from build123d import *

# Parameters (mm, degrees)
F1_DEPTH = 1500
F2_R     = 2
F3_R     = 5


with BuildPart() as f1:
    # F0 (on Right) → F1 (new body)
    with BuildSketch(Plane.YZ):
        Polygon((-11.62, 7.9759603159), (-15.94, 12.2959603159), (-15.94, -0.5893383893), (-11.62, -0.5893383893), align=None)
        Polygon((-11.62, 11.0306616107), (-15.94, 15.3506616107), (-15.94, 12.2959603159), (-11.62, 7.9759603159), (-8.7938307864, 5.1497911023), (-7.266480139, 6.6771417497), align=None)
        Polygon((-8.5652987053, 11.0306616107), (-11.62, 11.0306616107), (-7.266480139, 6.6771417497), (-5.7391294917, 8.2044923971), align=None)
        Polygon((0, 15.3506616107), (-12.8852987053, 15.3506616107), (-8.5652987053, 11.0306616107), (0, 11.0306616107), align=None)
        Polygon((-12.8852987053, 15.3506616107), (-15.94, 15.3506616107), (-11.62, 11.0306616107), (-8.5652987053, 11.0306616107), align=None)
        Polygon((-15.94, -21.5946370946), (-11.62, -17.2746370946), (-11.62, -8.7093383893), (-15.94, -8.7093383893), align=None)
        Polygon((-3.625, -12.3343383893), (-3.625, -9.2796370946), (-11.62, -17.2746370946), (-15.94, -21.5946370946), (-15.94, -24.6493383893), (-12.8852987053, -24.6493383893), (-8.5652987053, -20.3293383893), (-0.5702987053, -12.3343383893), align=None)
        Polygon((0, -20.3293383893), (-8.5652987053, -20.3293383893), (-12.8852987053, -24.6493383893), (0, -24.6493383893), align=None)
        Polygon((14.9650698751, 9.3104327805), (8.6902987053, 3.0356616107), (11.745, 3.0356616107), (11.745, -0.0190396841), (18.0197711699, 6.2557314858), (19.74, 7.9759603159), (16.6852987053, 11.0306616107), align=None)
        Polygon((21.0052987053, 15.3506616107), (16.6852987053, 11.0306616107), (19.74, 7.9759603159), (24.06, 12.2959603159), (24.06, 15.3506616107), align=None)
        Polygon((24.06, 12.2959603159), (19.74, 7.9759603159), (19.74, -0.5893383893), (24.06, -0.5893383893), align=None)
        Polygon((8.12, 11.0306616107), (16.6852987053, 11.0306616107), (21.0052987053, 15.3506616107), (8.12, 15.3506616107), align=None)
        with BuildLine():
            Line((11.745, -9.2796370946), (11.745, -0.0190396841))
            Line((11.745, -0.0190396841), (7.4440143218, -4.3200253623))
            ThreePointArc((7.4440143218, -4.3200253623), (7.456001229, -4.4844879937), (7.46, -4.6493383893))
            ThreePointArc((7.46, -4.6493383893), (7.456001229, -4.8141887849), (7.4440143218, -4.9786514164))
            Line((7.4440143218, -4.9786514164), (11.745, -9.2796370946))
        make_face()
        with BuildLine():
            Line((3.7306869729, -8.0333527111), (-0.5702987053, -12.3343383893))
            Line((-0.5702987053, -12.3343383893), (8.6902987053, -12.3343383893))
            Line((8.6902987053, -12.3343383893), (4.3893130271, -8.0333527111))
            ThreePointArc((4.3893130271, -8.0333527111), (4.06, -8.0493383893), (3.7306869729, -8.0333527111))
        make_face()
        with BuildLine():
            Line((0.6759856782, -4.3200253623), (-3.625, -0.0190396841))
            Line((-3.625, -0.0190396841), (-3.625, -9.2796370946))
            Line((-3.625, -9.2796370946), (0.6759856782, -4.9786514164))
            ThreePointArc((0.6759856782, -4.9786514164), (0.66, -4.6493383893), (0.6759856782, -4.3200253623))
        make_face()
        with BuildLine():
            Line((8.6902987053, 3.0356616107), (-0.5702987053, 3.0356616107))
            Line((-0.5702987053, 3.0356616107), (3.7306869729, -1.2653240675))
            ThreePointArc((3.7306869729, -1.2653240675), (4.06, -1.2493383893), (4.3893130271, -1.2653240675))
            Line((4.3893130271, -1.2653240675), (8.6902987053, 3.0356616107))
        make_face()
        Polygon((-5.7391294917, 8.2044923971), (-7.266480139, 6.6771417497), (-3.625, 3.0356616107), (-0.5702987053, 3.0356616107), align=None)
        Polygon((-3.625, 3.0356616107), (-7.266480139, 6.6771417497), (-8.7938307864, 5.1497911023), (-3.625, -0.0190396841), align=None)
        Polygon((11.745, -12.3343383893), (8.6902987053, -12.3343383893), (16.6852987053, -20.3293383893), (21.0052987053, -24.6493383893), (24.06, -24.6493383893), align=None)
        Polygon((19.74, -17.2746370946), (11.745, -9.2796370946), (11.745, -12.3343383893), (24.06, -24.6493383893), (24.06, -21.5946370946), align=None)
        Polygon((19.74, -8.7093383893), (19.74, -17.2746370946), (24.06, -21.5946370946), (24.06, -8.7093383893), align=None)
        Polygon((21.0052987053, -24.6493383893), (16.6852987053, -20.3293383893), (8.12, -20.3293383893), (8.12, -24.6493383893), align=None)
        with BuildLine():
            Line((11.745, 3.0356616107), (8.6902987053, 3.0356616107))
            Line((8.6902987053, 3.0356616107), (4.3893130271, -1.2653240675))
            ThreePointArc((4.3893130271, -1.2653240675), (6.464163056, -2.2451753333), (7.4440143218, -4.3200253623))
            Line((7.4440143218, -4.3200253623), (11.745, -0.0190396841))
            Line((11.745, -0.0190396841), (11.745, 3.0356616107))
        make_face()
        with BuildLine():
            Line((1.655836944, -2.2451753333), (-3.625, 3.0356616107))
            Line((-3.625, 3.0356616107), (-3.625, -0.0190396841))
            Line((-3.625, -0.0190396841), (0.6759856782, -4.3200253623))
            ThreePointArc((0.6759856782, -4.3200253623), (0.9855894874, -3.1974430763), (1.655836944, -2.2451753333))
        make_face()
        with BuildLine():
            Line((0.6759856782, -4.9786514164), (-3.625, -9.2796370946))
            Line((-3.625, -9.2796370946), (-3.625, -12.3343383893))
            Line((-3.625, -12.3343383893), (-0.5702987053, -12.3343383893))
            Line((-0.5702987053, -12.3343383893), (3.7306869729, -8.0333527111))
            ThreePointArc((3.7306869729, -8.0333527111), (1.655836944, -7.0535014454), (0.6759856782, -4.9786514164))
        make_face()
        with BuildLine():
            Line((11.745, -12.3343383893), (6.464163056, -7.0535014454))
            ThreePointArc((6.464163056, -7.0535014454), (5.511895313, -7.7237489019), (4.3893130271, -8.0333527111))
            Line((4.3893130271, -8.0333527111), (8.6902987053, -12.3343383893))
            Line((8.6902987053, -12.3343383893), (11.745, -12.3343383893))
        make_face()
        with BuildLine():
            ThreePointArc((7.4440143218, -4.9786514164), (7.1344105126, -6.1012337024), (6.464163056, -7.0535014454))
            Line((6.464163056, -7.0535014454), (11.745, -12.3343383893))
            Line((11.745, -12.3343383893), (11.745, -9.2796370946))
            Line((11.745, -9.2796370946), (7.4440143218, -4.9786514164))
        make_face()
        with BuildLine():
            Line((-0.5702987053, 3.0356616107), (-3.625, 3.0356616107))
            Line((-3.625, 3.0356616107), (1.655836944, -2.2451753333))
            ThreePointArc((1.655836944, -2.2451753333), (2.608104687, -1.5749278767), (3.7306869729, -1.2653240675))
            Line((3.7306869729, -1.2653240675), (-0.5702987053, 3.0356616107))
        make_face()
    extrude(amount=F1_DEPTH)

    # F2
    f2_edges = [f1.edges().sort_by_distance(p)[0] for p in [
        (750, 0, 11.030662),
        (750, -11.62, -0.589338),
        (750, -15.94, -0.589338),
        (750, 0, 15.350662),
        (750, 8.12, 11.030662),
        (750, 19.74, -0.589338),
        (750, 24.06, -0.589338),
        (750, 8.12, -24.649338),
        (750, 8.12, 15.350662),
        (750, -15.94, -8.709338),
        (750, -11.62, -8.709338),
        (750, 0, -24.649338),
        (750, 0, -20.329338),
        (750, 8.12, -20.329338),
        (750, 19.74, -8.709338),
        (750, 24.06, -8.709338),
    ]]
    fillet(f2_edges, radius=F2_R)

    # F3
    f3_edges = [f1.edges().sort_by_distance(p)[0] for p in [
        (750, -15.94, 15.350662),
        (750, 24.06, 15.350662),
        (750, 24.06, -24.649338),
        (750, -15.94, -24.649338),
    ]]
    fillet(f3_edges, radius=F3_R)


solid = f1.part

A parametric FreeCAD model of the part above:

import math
import FreeCAD as App
import Part
import Sketcher
from FreeCAD import Vector


def edges_at(feature, points):
    """Names of the edges that pass closest to the given points."""
    edges = feature.Shape.Edges
    near = lambda p: min(range(len(edges)), key=lambda i: edges[i].distToShape(Part.Vertex(*p))[0])
    return sorted({f"Edge{near(p) + 1}" for p in points})

doc = App.newDocument("Part")
body = doc.addObject("PartDesign::Body", "Body")

# Sketch on YZ plane
sketch1 = doc.addObject("Sketcher::SketchObject", "Sketch")
body.addObject(sketch1)
sketch1.AttachmentSupport = (doc.YZ_Plane, [""])
sketch1.MapMode = "FlatFace"
sketch1.addGeometry([
    Part.LineSegment(Vector(8.69, 3.04, 0), Vector(-0.57, 3.04, 0)),  # 0
    Part.LineSegment(Vector(-0.57, 3.04, 0), Vector(-8.57, 11.03, 0)),  # 1
    Part.LineSegment(Vector(-8.57, 11.03, 0), Vector(0, 11.03, 0)),  # 2
    Part.LineSegment(Vector(0, 11.03, 0), Vector(0, 15.35, 0)),  # 3
    Part.LineSegment(Vector(0, 15.35, 0), Vector(-15.94, 15.35, 0)),  # 4
    Part.LineSegment(Vector(-15.94, 15.35, 0), Vector(-15.94, -0.59, 0)),  # 5
    Part.LineSegment(Vector(-15.94, -0.59, 0), Vector(-11.62, -0.59, 0)),  # 6
    Part.LineSegment(Vector(-11.62, -0.59, 0), Vector(-11.62, 7.98, 0)),  # 7
    Part.LineSegment(Vector(-11.62, 7.98, 0), Vector(-3.62, -0.02, 0)),  # 8
    Part.LineSegment(Vector(-3.62, -0.02, 0), Vector(-3.62, -9.28, 0)),  # 9
    Part.LineSegment(Vector(-3.62, -9.28, 0), Vector(-11.62, -17.27, 0)),  # 10
    Part.LineSegment(Vector(-11.62, -17.27, 0), Vector(-11.62, -8.71, 0)),  # 11
    Part.LineSegment(Vector(-11.62, -8.71, 0), Vector(-15.94, -8.71, 0)),  # 12
    Part.LineSegment(Vector(-15.94, -8.71, 0), Vector(-15.94, -24.65, 0)),  # 13
    Part.LineSegment(Vector(-15.94, -24.65, 0), Vector(0, -24.65, 0)),  # 14
    Part.LineSegment(Vector(0, -24.65, 0), Vector(0, -20.33, 0)),  # 15
    Part.LineSegment(Vector(0, -20.33, 0), Vector(-8.57, -20.33, 0)),  # 16
    Part.LineSegment(Vector(-8.57, -20.33, 0), Vector(-0.57, -12.33, 0)),  # 17
    Part.LineSegment(Vector(-0.57, -12.33, 0), Vector(8.69, -12.33, 0)),  # 18
    Part.LineSegment(Vector(8.69, -12.33, 0), Vector(16.69, -20.33, 0)),  # 19
    Part.LineSegment(Vector(16.69, -20.33, 0), Vector(8.12, -20.33, 0)),  # 20
    Part.LineSegment(Vector(8.12, -20.33, 0), Vector(8.12, -24.65, 0)),  # 21
    Part.LineSegment(Vector(8.12, -24.65, 0), Vector(24.06, -24.65, 0)),  # 22
    Part.LineSegment(Vector(24.06, -24.65, 0), Vector(24.06, -8.71, 0)),  # 23
    Part.LineSegment(Vector(24.06, -8.71, 0), Vector(19.74, -8.71, 0)),  # 24
    Part.LineSegment(Vector(19.74, -8.71, 0), Vector(19.74, -17.27, 0)),  # 25
    Part.LineSegment(Vector(19.74, -17.27, 0), Vector(11.74, -9.28, 0)),  # 26
    Part.LineSegment(Vector(11.74, -9.28, 0), Vector(11.74, -0.02, 0)),  # 27
    Part.LineSegment(Vector(11.74, -0.02, 0), Vector(19.74, 7.98, 0)),  # 28
    Part.LineSegment(Vector(19.74, 7.98, 0), Vector(19.74, -0.59, 0)),  # 29
    Part.LineSegment(Vector(19.74, -0.59, 0), Vector(24.06, -0.59, 0)),  # 30
    Part.LineSegment(Vector(24.06, -0.59, 0), Vector(24.06, 15.35, 0)),  # 31
    Part.LineSegment(Vector(24.06, 15.35, 0), Vector(8.12, 15.35, 0)),  # 32
    Part.LineSegment(Vector(8.12, 15.35, 0), Vector(8.12, 11.03, 0)),  # 33
    Part.LineSegment(Vector(8.12, 11.03, 0), Vector(16.69, 11.03, 0)),  # 34
    Part.LineSegment(Vector(16.69, 11.03, 0), Vector(8.69, 3.04, 0)),  # 35
    Part.ArcOfCircle(Part.Circle(Vector(4.06, -4.65, 0), Vector(0, 0, 1), 3.4), math.radians(135), math.radians(174)),  # 36
    Part.ArcOfCircle(Part.Circle(Vector(4.06, -4.65, 0), Vector(0, 0, 1), 3.4), math.radians(96), math.radians(135)),  # 37
    Part.ArcOfCircle(Part.Circle(Vector(4.06, -4.65, 0), Vector(0, 0, 1), 3.4), math.radians(84.44), math.radians(95.56)),  # 38
    Part.ArcOfCircle(Part.Circle(Vector(4.06, -4.65, 0), Vector(0, 0, 1), 3.4), math.radians(6), math.radians(84)),  # 39
    Part.ArcOfCircle(Part.Circle(Vector(4.06, -4.65, 0), Vector(0, 0, 1), 3.4), math.radians(0), math.radians(5.56)),  # 40
    Part.ArcOfCircle(Part.Circle(Vector(4.06, -4.65, 0), Vector(0, 0, 1), 3.4), math.radians(-5.56), math.radians(0)),  # 41
    Part.ArcOfCircle(Part.Circle(Vector(4.06, -4.65, 0), Vector(0, 0, 1), 3.4), math.radians(-45), math.radians(-6)),  # 42
    Part.ArcOfCircle(Part.Circle(Vector(4.06, -4.65, 0), Vector(0, 0, 1), 3.4), math.radians(-84), math.radians(-45)),  # 43
    Part.ArcOfCircle(Part.Circle(Vector(4.06, -4.65, 0), Vector(0, 0, 1), 3.4), math.radians(-95.56), math.radians(-84.44)),  # 44
    Part.ArcOfCircle(Part.Circle(Vector(4.06, -4.65, 0), Vector(0, 0, 1), 3.4), math.radians(-174), math.radians(-96)),  # 45
    Part.ArcOfCircle(Part.Circle(Vector(4.06, -4.65, 0), Vector(0, 0, 1), 3.4), math.radians(174.44), math.radians(185.56)),  # 46
], False)
sketch1.addConstraint([
    Sketcher.Constraint("Coincident", 0, 2, 1, 1),
    Sketcher.Constraint("Coincident", 1, 2, 2, 1),
    Sketcher.Constraint("Coincident", 2, 2, 3, 1),
    Sketcher.Constraint("Coincident", 3, 2, 4, 1),
    Sketcher.Constraint("Coincident", 4, 2, 5, 1),
    Sketcher.Constraint("Coincident", 5, 2, 6, 1),
    Sketcher.Constraint("Coincident", 6, 2, 7, 1),
    Sketcher.Constraint("Coincident", 7, 2, 8, 1),
    Sketcher.Constraint("Coincident", 8, 2, 9, 1),
    Sketcher.Constraint("Coincident", 9, 2, 10, 1),
    Sketcher.Constraint("Coincident", 10, 2, 11, 1),
    Sketcher.Constraint("Coincident", 11, 2, 12, 1),
    Sketcher.Constraint("Coincident", 12, 2, 13, 1),
    Sketcher.Constraint("Coincident", 13, 2, 14, 1),
    Sketcher.Constraint("Coincident", 14, 2, 15, 1),
    Sketcher.Constraint("Coincident", 15, 2, 16, 1),
    Sketcher.Constraint("Coincident", 16, 2, 17, 1),
    Sketcher.Constraint("Coincident", 17, 2, 18, 1),
    Sketcher.Constraint("Coincident", 18, 2, 19, 1),
    Sketcher.Constraint("Coincident", 19, 2, 20, 1),
    Sketcher.Constraint("Coincident", 20, 2, 21, 1),
    Sketcher.Constraint("Coincident", 21, 2, 22, 1),
    Sketcher.Constraint("Coincident", 22, 2, 23, 1),
    Sketcher.Constraint("Coincident", 23, 2, 24, 1),
    Sketcher.Constraint("Coincident", 24, 2, 25, 1),
    Sketcher.Constraint("Coincident", 25, 2, 26, 1),
    Sketcher.Constraint("Coincident", 26, 2, 27, 1),
    Sketcher.Constraint("Coincident", 27, 2, 28, 1),
    Sketcher.Constraint("Coincident", 28, 2, 29, 1),
    Sketcher.Constraint("Coincident", 29, 2, 30, 1),
    Sketcher.Constraint("Coincident", 30, 2, 31, 1),
    Sketcher.Constraint("Coincident", 31, 2, 32, 1),
    Sketcher.Constraint("Coincident", 32, 2, 33, 1),
    Sketcher.Constraint("Coincident", 33, 2, 34, 1),
    Sketcher.Constraint("Coincident", 34, 2, 35, 1),
    Sketcher.Constraint("Coincident", 35, 2, 0, 1),
    Sketcher.Constraint("Tangent", 36, 1, 37, 2),
    Sketcher.Constraint("Tangent", 37, 1, 38, 2),
    Sketcher.Constraint("Tangent", 38, 1, 39, 2),
    Sketcher.Constraint("Tangent", 39, 1, 40, 2),
    Sketcher.Constraint("Tangent", 40, 1, 41, 2),
    Sketcher.Constraint("Tangent", 41, 1, 42, 2),
    Sketcher.Constraint("Tangent", 42, 1, 43, 2),
    Sketcher.Constraint("Tangent", 43, 1, 44, 2),
    Sketcher.Constraint("Tangent", 44, 1, 45, 2),
    Sketcher.Constraint("Tangent", 45, 1, 46, 2),
    Sketcher.Constraint("Tangent", 46, 1, 36, 2),
    Sketcher.Constraint("Horizontal", 0),
    Sketcher.Constraint("Horizontal", 2),
    Sketcher.Constraint("Vertical", 3),
    Sketcher.Constraint("Horizontal", 4),
    Sketcher.Constraint("Vertical", 5),
    Sketcher.Constraint("Horizontal", 6),
    Sketcher.Constraint("Vertical", 7),
    Sketcher.Constraint("Vertical", 9),
    Sketcher.Constraint("Vertical", 11),
    Sketcher.Constraint("Horizontal", 12),
    Sketcher.Constraint("Vertical", 13),
    Sketcher.Constraint("Horizontal", 14),
    Sketcher.Constraint("Vertical", 15),
    Sketcher.Constraint("Horizontal", 16),
    Sketcher.Constraint("Horizontal", 18),
    Sketcher.Constraint("Horizontal", 20),
    Sketcher.Constraint("Vertical", 21),
    Sketcher.Constraint("Horizontal", 22),
    Sketcher.Constraint("Vertical", 23),
    Sketcher.Constraint("Horizontal", 24),
    Sketcher.Constraint("Vertical", 25),
    Sketcher.Constraint("Vertical", 27),
    Sketcher.Constraint("Vertical", 29),
    Sketcher.Constraint("Horizontal", 30),
    Sketcher.Constraint("Vertical", 31),
    Sketcher.Constraint("Horizontal", 32),
    Sketcher.Constraint("Vertical", 33),
    Sketcher.Constraint("Horizontal", 34),
    Sketcher.Constraint("Coincident", 38, 3, 36, 3),
    Sketcher.Constraint("Coincident", 40, 3, 36, 3),
    Sketcher.Constraint("Coincident", 42, 3, 36, 3),
    Sketcher.Constraint("Coincident", 44, 3, 36, 3),
    Sketcher.Constraint("PointOnObject", 2, 2, -2),
    Sketcher.Constraint("PointOnObject", 14, 2, -2),
    Sketcher.Constraint("Parallel", 1, 8),
    Sketcher.Constraint("Perpendicular", 8, 10),
    Sketcher.Constraint("Parallel", 10, 17),
    Sketcher.Constraint("Perpendicular", 17, 19),
    Sketcher.Constraint("Parallel", 19, 26),
    Sketcher.Constraint("Perpendicular", 26, 28),
    Sketcher.Constraint("Parallel", 28, 35),
    Sketcher.Constraint("Horizontal", 16, 2, 19, 2),
    Sketcher.Constraint("Horizontal", 14, 2, 21, 2),
    Sketcher.Constraint("Horizontal", 12, 2, 23, 2),
    Sketcher.Constraint("Horizontal", 10, 2, 25, 2),
    Sketcher.Constraint("Horizontal", 9, 2, 26, 2),
    Sketcher.Constraint("Horizontal", 8, 2, 27, 2),
    Sketcher.Constraint("Horizontal", 7, 2, 28, 2),
    Sketcher.Constraint("Horizontal", 6, 2, 29, 2),
    Sketcher.Constraint("Horizontal", 4, 2, 31, 2),
    Sketcher.Constraint("Horizontal", 2, 2, 33, 2),
    Sketcher.Constraint("Horizontal", 37, 1, 38, 1),
    Sketcher.Constraint("Horizontal", 46, 3, 40, 1),
    Sketcher.Constraint("Horizontal", 43, 1, 44, 1),
    Sketcher.Constraint("Horizontal", 41, 1, 45, 1),
    Sketcher.Constraint("Horizontal", 39, 1, 46, 1),
    Sketcher.Constraint("Vertical", 7, 2, 10, 2),
    Sketcher.Constraint("Vertical", 5, 2, 12, 2),
    Sketcher.Constraint("Vertical", 1, 2, 16, 2),
    Sketcher.Constraint("Vertical", 0, 2, 17, 2),
    Sketcher.Constraint("Vertical", 25, 2, 28, 2),
    Sketcher.Constraint("Vertical", 23, 2, 30, 2),
    Sketcher.Constraint("Vertical", 21, 2, 32, 2),
    Sketcher.Constraint("Vertical", 19, 2, 34, 2),
    Sketcher.Constraint("Vertical", 39, 1, 41, 1),
    Sketcher.Constraint("Vertical", 38, 1, 43, 1),
    Sketcher.Constraint("Equal", 16, 20),
    Sketcher.Constraint("Equal", 14, 22),
    Sketcher.Constraint("Equal", 12, 24),
    Sketcher.Constraint("Equal", 30, 3),
    Sketcher.Constraint("Equal", 32, 5),
    Sketcher.Constraint("Equal", 34, 7),
    Sketcher.Constraint("Equal", 18, 9),
    Sketcher.Constraint("Equal", 7, 11),
    Sketcher.Constraint("Equal", 5, 13),
    Sketcher.Constraint("Equal", 3, 15),
    Sketcher.Constraint("Equal", 1, 8),
    Sketcher.Constraint("Radius", 36, 3.4),
    Sketcher.Constraint("DistanceY", 38, 3, 3, 2, 20.0),
    Sketcher.Constraint("DistanceX", 4, 2, 46, 3, 20.0),
    Sketcher.Constraint("DistanceY", 14, 2, 44, 3, 20.0),
    Sketcher.Constraint("DistanceX", 4, 2, 4, 1, 15.94),
    Sketcher.Constraint("DistanceX", 6, 1, 6, 2, 4.32),
    Sketcher.Constraint("DistanceX", 2, 1, 2, 2, 8.565299),
    Sketcher.Constraint("DistanceX", 8, 2, -1, 1, 3.625),
    Sketcher.Constraint("DistanceY", 42, 1, -1, 1, 7.053501),
    Sketcher.Constraint("DistanceY", 36, 3, -1, 1, 4.649338),
    Sketcher.Constraint("DistanceY", 41, 1, -1, 1, 4.978651),
    Sketcher.Constraint("DistanceX", 36, 1, 37, 1, 2.07485),
    Sketcher.Constraint("DistanceY", 36, 1, 37, 1, 0.979851),
])
pad1 = doc.addObject("PartDesign::Pad", "Pad")
body.addObject(pad1)
pad1.Profile = sketch1
pad1.Length = 1500
doc.recompute()

fillet = doc.addObject("PartDesign::Fillet", "Fillet")
body.addObject(fillet)
fillet.Base = (pad1, edges_at(pad1, [
    (750, 0, 11.031),
    (750, -11.62, -0.589),
    (750, -15.94, -0.589),
    (750, 0, 15.351),
    (750, 8.12, 11.031),
    (750, 19.74, -0.589),
    (750, 24.06, -0.589),
    (750, 8.12, -24.649),
    (750, 8.12, 15.351),
    (750, -15.94, -8.709),
    (750, -11.62, -8.709),
    (750, 0, -24.649),
    (750, 0, -20.329),
    (750, 8.12, -20.329),
    (750, 19.74, -8.709),
    (750, 24.06, -8.709),
]))
fillet.Radius = 2
doc.recompute()

fillet2 = doc.addObject("PartDesign::Fillet", "Fillet001")
body.addObject(fillet2)
fillet2.Base = (fillet, edges_at(fillet, [
    (750, -15.94, 15.351),
    (750, 24.06, 15.351),
    (750, 24.06, -24.649),
    (750, -15.94, -24.649),
]))
fillet2.Radius = 5

doc.recompute()
